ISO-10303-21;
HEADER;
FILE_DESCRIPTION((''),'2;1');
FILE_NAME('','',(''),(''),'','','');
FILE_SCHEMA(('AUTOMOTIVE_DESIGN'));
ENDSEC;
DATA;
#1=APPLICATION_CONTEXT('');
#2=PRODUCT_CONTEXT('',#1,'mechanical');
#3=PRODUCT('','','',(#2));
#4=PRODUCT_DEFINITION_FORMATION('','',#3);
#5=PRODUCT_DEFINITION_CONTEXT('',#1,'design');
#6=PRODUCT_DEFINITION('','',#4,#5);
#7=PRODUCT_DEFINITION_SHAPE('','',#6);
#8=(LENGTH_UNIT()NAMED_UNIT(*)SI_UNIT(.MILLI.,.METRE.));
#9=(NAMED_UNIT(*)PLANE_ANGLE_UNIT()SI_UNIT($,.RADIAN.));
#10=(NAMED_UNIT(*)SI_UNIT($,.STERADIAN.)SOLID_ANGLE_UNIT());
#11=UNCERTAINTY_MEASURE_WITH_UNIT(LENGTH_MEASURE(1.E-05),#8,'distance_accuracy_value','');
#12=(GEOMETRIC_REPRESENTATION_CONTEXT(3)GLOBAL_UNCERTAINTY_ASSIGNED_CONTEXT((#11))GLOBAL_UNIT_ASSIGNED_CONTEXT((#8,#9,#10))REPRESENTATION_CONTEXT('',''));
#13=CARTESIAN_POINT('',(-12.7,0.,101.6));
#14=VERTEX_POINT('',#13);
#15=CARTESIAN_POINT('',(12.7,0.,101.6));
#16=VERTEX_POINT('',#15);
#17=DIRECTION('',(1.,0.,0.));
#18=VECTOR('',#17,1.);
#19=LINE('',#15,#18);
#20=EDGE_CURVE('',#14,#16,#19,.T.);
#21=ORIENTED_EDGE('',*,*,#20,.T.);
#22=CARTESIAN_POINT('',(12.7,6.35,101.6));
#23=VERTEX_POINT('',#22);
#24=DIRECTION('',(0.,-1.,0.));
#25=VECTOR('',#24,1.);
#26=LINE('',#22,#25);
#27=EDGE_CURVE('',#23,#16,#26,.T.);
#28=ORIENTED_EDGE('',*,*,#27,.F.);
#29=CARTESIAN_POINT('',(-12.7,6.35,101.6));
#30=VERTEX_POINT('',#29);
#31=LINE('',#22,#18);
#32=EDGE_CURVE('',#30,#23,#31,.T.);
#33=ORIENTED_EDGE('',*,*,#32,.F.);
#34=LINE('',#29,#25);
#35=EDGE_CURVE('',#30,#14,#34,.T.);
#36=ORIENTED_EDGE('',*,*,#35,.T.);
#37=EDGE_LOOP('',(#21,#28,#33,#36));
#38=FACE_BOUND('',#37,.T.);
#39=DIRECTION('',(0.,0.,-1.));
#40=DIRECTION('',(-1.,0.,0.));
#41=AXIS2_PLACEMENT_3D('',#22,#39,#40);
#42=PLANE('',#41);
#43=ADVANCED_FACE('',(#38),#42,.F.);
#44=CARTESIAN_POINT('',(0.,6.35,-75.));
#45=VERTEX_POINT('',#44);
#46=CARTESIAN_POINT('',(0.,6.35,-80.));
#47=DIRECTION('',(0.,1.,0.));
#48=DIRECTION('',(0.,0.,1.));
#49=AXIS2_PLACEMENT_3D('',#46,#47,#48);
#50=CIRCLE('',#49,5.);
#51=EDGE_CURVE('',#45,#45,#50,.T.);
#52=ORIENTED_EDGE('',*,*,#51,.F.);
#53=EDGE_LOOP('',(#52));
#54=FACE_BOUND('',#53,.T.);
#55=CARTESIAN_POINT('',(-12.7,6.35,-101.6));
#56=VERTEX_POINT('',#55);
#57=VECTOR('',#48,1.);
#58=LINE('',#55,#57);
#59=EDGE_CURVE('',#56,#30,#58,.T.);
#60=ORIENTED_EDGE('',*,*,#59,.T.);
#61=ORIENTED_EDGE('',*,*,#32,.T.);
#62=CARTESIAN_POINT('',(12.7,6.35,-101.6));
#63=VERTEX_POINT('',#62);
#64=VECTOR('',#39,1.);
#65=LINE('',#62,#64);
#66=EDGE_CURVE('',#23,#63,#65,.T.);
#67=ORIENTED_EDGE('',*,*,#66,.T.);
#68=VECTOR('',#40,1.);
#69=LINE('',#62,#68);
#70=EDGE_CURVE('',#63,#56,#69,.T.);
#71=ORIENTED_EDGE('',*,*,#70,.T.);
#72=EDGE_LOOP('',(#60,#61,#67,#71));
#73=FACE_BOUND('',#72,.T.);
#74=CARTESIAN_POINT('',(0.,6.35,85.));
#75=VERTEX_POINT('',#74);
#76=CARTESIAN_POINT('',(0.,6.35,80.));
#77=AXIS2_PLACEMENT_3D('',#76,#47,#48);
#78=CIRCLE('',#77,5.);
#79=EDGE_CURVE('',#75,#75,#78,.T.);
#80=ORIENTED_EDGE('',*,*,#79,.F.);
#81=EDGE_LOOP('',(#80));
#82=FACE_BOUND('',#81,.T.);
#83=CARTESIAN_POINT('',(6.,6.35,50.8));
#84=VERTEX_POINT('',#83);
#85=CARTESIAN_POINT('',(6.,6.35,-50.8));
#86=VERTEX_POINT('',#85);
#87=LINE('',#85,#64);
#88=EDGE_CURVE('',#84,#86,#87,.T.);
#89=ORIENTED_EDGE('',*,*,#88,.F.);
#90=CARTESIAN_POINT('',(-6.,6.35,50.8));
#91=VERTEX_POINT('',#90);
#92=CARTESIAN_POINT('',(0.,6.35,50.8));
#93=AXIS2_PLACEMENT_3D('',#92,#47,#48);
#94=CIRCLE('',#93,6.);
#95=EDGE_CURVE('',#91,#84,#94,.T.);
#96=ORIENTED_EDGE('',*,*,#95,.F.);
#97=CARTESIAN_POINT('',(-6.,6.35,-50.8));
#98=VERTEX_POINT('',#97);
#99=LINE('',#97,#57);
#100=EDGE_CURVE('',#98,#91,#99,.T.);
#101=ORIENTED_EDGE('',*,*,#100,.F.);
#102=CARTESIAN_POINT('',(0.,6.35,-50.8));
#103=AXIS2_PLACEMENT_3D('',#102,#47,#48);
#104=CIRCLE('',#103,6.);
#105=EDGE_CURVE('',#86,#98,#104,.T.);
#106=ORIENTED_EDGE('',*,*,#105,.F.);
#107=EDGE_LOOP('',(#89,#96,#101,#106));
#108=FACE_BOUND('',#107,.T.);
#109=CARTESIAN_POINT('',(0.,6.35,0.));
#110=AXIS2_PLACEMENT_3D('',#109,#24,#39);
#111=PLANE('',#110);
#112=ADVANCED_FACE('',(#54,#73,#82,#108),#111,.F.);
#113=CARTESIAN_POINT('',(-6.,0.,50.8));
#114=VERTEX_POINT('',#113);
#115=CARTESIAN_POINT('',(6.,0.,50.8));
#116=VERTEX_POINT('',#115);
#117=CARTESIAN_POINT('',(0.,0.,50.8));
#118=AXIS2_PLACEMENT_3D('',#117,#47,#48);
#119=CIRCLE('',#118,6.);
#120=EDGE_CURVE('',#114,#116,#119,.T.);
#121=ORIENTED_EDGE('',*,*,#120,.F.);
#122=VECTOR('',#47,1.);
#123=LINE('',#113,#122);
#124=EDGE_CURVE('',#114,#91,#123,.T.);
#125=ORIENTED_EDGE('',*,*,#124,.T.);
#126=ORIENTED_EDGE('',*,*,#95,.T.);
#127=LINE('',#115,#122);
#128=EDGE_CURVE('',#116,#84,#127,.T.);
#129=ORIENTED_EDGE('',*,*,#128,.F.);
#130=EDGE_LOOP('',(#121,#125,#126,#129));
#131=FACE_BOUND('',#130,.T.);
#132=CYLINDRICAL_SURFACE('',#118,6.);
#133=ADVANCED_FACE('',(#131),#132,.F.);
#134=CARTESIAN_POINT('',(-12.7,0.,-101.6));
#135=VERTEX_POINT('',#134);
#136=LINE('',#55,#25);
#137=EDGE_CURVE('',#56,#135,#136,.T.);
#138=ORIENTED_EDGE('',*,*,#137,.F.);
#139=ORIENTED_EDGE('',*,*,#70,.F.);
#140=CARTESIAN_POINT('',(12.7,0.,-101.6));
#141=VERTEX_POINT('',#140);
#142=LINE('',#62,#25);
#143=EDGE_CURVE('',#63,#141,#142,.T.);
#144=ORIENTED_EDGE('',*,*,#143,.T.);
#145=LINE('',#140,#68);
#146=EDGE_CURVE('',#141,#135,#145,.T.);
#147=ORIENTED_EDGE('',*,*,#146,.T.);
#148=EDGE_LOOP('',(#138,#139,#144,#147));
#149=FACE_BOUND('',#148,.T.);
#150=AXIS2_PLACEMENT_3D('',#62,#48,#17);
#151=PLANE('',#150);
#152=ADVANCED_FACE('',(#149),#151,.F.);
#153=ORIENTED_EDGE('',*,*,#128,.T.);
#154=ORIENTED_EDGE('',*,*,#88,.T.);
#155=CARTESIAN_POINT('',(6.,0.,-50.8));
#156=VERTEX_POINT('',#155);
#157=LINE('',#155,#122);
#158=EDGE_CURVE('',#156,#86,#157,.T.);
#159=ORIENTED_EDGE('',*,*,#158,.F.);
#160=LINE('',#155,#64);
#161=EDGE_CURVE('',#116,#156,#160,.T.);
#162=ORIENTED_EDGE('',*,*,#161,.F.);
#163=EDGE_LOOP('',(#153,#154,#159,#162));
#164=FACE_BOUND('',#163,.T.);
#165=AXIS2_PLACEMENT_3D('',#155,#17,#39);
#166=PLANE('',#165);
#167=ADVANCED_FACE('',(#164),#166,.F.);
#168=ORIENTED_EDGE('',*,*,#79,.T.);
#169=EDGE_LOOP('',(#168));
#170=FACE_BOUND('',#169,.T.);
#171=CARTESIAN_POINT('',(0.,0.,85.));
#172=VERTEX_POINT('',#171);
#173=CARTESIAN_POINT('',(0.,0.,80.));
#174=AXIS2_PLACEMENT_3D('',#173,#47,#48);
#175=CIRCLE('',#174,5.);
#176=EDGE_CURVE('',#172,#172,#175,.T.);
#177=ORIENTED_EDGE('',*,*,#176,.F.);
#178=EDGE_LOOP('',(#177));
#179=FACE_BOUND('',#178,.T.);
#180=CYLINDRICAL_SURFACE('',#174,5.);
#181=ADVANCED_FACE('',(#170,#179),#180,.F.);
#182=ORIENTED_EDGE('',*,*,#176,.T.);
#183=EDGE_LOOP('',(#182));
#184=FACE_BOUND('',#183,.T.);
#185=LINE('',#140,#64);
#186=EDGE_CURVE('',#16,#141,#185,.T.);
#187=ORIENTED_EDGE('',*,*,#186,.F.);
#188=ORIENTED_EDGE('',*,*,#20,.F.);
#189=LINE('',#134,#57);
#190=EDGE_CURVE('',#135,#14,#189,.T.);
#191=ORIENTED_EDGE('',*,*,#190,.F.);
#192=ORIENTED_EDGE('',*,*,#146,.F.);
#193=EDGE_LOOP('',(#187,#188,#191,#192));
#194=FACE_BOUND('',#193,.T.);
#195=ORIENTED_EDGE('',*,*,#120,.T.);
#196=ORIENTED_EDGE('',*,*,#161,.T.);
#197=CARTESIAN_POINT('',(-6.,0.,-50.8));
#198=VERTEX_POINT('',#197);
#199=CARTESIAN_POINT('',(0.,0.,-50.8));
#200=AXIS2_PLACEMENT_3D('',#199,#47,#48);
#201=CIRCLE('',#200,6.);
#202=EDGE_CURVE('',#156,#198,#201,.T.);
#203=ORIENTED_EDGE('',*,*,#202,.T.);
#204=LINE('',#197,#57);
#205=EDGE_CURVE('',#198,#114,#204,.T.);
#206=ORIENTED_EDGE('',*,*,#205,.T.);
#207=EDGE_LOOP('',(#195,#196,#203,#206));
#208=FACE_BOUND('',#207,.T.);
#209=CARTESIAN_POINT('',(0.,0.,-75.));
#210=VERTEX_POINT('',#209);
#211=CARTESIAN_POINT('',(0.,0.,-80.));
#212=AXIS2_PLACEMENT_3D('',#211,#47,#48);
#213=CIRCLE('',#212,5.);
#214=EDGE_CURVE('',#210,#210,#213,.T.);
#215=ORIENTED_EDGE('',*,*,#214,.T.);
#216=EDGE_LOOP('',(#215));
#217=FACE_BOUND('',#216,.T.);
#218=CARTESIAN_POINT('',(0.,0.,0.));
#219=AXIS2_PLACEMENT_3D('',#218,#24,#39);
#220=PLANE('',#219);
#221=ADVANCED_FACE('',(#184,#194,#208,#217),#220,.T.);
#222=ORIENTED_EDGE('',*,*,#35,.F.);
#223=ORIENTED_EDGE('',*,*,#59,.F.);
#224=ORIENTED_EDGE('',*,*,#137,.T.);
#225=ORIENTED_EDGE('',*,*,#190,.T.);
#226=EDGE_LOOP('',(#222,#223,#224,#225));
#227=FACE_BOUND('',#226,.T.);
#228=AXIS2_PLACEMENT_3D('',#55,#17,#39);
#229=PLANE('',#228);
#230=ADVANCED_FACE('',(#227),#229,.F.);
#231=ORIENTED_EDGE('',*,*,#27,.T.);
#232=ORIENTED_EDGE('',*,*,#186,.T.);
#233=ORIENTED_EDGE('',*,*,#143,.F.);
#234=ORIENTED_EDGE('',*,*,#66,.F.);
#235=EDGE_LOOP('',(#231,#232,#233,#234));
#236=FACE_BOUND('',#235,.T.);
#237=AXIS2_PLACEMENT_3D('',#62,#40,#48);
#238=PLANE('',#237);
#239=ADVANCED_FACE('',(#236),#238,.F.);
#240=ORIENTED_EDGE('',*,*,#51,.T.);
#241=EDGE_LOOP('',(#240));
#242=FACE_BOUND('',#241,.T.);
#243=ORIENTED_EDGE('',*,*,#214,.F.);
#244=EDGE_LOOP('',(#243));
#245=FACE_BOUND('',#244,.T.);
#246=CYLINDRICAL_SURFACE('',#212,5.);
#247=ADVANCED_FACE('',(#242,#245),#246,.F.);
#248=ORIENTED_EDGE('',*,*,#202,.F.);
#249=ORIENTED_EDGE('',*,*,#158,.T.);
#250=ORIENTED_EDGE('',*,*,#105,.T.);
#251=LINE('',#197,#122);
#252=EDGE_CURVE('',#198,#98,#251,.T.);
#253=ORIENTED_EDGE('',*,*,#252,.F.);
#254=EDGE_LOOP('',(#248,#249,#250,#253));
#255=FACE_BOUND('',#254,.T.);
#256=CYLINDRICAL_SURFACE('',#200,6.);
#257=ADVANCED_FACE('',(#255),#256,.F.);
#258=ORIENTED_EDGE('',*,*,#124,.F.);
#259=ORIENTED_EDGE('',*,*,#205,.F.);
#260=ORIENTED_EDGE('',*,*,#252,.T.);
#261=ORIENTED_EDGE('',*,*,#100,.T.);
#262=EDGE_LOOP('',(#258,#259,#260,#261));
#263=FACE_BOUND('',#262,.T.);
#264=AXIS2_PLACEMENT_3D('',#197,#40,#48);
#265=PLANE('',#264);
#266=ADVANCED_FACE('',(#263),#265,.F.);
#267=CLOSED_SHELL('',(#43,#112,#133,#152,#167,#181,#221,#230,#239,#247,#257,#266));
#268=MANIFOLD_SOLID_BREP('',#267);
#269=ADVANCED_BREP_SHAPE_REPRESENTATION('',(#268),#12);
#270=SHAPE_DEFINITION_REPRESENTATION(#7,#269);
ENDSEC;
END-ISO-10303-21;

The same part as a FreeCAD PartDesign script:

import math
import FreeCAD as App
import Part
import Sketcher
from FreeCAD import Vector
Q = App.Units.Quantity

doc = App.newDocument("Part")
params = doc.addObject("Spreadsheet::Sheet", "Params")
for row, (alias, value) in enumerate([
    ("sketch1_width", "1 in"),
    ("sketch1_height", "8 in"),
    ("pad1_length", "0.25 in"),
    ("sketch3_height", "4 in"),
], start=1):
    params.set(f"A{row}", alias)
    params.set(f"B{row}", "=" + value)
    params.setAlias(f"B{row}", alias)

body = doc.addObject("PartDesign::Body", "Body")

# Sketch on XZ plane
sketch1 = doc.addObject("Sketcher::SketchObject", "Sketch")
body.addObject(sketch1)
sketch1.AttachmentSupport = (doc.XZ_Plane, [""])
sketch1.MapMode = "FlatFace"
sketch1.addGeometry([
    Part.LineSegment(Vector(-13, -102, 0), Vector(-13, 102, 0)),
    Part.LineSegment(Vector(-13, 102, 0), Vector(13, 102, 0)),
    Part.LineSegment(Vector(13, 102, 0), Vector(13, -102, 0)),
    Part.LineSegment(Vector(13, -102, 0), Vector(-13, -102, 0)),
], False)
sketch1.addConstraint([
    Sketcher.Constraint("Coincident", 0, 2, 1, 1),
    Sketcher.Constraint("Coincident", 1, 2, 2, 1),
    Sketcher.Constraint("Coincident", 2, 2, 3, 1),
    Sketcher.Constraint("Coincident", 3, 2, 0, 1),
    Sketcher.Constraint("Vertical", 0),
    Sketcher.Constraint("Horizontal", 1),
    Sketcher.Constraint("Vertical", 2),
    Sketcher.Constraint("Horizontal", 3),
    Sketcher.Constraint("Symmetric", 0, 2, 2, 2, -1, 1),
    Sketcher.Constraint("DistanceX", 1, 1, 1, 2, Q("1 in")),
    Sketcher.Constraint("DistanceY", 0, 1, 0, 2, Q("8 in")),
])
sketch1.setExpression("Constraints[9]", "Params.sketch1_width")
sketch1.setExpression("Constraints[10]", "Params.sketch1_height")
pad1 = doc.addObject("PartDesign::Pad", "Pad")
body.addObject(pad1)
pad1.Profile = sketch1
pad1.setExpression("Length", "Params.pad1_length")
pad1.Reversed = True

# Sketch on XZ plane
sketch2 = doc.addObject("Sketcher::SketchObject", "Sketch001")
body.addObject(sketch2)
sketch2.AttachmentSupport = (doc.XZ_Plane, [""])
sketch2.MapMode = "FlatFace"
sketch2.AttachmentOffset = App.Placement(Vector(0, 0, -0.25 * 25.4), App.Rotation())
sketch2.addGeometry([
    Part.Circle(Vector(0, 80, 0), Vector(0, 0, 1), 5),
    Part.Circle(Vector(0, -80, 0), Vector(0, 0, 1), 5),
], False)
sketch2.addConstraint([
    Sketcher.Constraint("Equal", 0, 1),
    Sketcher.Constraint("Symmetric", 0, 3, 1, 3, -1, 1),
    Sketcher.Constraint("PointOnObject", 0, 3, -2),
    Sketcher.Constraint("Diameter", 0, Q("10 mm")),
    Sketcher.Constraint("DistanceY", -1, 1, 0, 3, Q("80 mm")),
])
pocket1 = doc.addObject("PartDesign::Pocket", "Pocket")
body.addObject(pocket1)
pocket1.Profile = sketch2
pocket1.Type = "ThroughAll"
pocket1.Reversed = True

# Sketch on XZ plane
sketch3 = doc.addObject("Sketcher::SketchObject", "Sketch002")
body.addObject(sketch3)
sketch3.AttachmentSupport = (doc.XZ_Plane, [""])
sketch3.MapMode = "FlatFace"
sketch3.AttachmentOffset = App.Placement(Vector(0, 0, -0.25 * 25.4), App.Rotation())
sketch3.addGeometry([
    Part.LineSegment(Vector(6, 51, 0), Vector(6, -51, 0)),
    Part.ArcOfCircle(Part.Circle(Vector(0, -51, 0), Vector(0, 0, 1), 6), math.radians(180), math.radians(360)),
    Part.LineSegment(Vector(-6, -51, 0), Vector(-6, 51, 0)),
    Part.ArcOfCircle(Part.Circle(Vector(0, 51, 0), Vector(0, 0, 1), 6), math.radians(0), math.radians(180)),
], False)
sketch3.addConstraint([
    Sketcher.Constraint("Tangent", 0, 2, 1, 2),
    Sketcher.Constraint("Tangent", 1, 1, 2, 1),
    Sketcher.Constraint("Tangent", 2, 2, 3, 2),
    Sketcher.Constraint("Tangent", 3, 1, 0, 1),
    Sketcher.Constraint("Vertical", 0),
    Sketcher.Constraint("Vertical", 2),
    Sketcher.Constraint("Symmetric", 1, 3, 3, 3, -1, 1),
    Sketcher.Constraint("DistanceY", 0, 2, 0, 1, Q("4 in")),
    Sketcher.Constraint("Radius", 1, Q("6 mm")),
])
sketch3.setExpression("Constraints[7]", "Params.sketch3_height")
pocket2 = doc.addObject("PartDesign::Pocket", "Pocket001")
body.addObject(pocket2)
pocket2.Profile = sketch3
pocket2.Type = "ThroughAll"
pocket2.Reversed = True

doc.recompute()
